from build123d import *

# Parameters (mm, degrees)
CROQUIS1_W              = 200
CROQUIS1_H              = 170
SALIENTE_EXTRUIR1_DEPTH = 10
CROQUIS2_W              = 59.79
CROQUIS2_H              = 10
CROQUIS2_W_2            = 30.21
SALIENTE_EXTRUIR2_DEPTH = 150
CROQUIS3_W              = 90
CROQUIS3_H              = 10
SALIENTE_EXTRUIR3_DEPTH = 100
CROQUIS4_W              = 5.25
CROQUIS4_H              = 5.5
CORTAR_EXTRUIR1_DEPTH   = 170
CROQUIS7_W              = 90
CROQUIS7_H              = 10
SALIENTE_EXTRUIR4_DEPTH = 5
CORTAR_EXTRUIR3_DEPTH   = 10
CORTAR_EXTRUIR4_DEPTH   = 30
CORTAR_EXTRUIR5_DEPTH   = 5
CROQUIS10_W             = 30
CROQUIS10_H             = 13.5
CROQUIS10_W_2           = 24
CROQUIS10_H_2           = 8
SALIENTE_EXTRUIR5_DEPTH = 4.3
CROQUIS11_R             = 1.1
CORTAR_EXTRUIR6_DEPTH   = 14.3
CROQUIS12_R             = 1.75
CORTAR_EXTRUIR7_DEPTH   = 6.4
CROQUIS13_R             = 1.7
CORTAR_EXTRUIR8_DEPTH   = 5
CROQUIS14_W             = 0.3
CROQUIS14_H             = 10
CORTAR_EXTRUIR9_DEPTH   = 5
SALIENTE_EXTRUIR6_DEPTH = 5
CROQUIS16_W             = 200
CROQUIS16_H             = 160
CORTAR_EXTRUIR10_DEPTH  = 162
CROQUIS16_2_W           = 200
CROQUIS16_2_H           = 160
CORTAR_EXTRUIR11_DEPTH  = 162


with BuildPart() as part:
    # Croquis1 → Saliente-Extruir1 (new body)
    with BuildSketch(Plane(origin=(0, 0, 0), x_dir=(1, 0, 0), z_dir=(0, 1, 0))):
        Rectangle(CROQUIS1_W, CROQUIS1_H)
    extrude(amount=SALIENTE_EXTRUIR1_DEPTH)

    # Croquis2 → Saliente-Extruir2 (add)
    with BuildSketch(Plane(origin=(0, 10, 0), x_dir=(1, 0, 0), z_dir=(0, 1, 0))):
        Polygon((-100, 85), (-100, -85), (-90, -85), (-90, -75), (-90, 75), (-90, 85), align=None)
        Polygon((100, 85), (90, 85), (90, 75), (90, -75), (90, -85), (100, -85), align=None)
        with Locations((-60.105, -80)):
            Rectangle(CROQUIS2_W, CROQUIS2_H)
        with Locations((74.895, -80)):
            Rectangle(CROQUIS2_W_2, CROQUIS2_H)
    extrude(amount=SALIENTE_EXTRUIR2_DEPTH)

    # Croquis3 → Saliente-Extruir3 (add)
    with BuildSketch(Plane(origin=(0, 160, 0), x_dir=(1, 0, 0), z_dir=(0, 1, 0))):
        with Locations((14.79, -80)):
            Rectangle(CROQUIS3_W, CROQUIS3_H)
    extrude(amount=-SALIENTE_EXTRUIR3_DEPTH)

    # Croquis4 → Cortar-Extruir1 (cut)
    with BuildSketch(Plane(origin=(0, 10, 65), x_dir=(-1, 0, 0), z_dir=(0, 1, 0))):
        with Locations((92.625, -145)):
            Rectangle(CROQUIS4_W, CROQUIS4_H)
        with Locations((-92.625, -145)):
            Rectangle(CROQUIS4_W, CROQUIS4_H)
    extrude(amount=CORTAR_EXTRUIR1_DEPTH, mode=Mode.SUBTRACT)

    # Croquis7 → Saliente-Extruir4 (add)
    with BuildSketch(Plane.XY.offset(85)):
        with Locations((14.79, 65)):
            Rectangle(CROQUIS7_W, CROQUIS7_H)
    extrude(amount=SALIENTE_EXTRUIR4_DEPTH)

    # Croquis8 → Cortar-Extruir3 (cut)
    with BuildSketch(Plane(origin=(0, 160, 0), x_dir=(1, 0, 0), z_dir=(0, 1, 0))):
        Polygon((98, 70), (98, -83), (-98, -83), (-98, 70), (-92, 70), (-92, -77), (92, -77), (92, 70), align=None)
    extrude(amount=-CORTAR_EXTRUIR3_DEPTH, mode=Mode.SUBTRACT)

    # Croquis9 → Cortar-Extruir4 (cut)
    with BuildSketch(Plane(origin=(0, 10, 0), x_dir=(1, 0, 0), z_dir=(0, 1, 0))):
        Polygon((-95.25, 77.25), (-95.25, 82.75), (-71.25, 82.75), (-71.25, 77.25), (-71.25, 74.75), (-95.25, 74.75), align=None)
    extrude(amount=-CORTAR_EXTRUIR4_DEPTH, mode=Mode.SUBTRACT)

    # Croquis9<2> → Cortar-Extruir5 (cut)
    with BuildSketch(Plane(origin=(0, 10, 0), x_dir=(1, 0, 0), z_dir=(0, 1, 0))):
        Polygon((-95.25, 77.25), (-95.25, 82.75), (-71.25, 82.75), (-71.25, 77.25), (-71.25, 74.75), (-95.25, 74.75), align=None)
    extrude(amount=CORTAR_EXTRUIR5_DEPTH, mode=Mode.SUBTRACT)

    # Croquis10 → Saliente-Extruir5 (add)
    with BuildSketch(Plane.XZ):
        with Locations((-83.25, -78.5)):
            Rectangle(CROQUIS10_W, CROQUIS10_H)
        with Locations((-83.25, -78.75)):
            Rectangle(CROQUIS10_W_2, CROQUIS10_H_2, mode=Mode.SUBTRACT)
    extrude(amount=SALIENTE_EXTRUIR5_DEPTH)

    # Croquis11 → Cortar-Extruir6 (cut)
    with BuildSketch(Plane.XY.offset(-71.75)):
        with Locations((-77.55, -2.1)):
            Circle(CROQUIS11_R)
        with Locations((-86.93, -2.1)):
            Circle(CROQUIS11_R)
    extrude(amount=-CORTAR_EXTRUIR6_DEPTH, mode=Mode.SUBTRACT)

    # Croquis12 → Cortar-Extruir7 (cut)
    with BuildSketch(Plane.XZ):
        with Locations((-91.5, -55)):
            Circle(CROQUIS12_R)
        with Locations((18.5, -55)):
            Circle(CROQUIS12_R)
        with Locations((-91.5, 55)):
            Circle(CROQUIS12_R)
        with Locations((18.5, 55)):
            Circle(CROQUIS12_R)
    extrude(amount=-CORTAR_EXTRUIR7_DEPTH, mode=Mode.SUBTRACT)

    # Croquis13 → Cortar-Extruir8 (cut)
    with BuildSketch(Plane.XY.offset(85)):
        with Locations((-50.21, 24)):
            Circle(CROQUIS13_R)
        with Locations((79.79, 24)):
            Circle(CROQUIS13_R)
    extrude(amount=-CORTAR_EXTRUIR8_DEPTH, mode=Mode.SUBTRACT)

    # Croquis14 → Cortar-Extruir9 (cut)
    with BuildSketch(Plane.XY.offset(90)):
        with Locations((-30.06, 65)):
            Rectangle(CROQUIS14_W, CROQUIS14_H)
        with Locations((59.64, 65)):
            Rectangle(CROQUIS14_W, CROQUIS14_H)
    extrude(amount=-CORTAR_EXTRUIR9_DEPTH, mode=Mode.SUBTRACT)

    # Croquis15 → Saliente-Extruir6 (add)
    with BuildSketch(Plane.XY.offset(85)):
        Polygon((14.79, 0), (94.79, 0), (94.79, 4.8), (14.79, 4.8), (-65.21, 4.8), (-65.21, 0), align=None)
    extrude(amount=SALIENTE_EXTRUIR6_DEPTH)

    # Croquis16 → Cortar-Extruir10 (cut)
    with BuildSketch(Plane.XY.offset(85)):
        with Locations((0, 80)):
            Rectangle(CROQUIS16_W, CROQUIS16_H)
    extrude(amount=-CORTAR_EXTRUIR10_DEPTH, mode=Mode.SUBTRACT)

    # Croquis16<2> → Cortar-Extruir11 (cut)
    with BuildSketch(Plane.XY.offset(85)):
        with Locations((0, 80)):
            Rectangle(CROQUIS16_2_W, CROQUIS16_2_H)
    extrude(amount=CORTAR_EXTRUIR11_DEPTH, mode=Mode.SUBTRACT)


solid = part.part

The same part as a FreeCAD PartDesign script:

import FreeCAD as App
import Part
import Sketcher

V = App.Vector

doc = App.newDocument("Part")
params = doc.addObject("Spreadsheet::Sheet", "Params")
for row, (alias, value) in enumerate([
    ("sketch1_width", "200 mm"),
    ("sketch1_height", "170 mm"),
    ("pad1_length", "10 mm"),
    ("sketch2_width", "10 mm"),
    ("sketch2_height", "170 mm"),
    ("sketch2_width2", "69.79 mm"),
    ("pad2_length", "150 mm"),
    ("sketch3_width", "90 mm"),
    ("sketch3_height", "10 mm"),
    ("pad3_length", "100 mm"),
    ("sketch4_height", "5.5 mm"),
    ("sketch4_width", "5.25 mm"),
    ("pocket1_length", "170 mm"),
    ("sketch5_width", "90 mm"),
    ("sketch5_height", "10 mm"),
    ("pad4_length", "5 mm"),
    ("sketch6_width", "6 mm"),
    ("sketch6_width2", "184 mm"),
    ("sketch6_height", "153 mm"),
    ("sketch6_height2", "147 mm"),
    ("pocket2_length", "10 mm"),
    ("sketch7_width", "24 mm"),
    ("sketch7_height", "8 mm"),
    ("pocket3_length", "30 mm"),
    ("sketch8_width", "24 mm"),
    ("sketch8_height", "8 mm"),
    ("pocket4_length", "5 mm"),
    ("sketch9_width", "30 mm"),
    ("sketch9_width2", "24 mm"),
    ("sketch9_height", "8 mm"),
    ("sketch9_height2", "13.5 mm"),
    ("pad5_length", "4.3 mm"),
    ("sketch10_diameter", "2.2 mm"),
    ("pocket5_length", "14.3 mm"),
    ("sketch11_diameter", "3.5 mm"),
    ("pocket6_length", "6.4 mm"),
    ("sketch12_diameter", "3.4 mm"),
    ("pocket7_length", "5 mm"),
    ("sketch13_height", "10 mm"),
    ("sketch13_width", "0.3 mm"),
    ("pocket8_length", "5 mm"),
    ("sketch14_width", "160 mm"),
    ("sketch14_height", "4.8 mm"),
    ("pad6_length", "5 mm"),
    ("sketch15_width", "200 mm"),
    ("sketch15_height", "160 mm"),
    ("pocket9_length", "162 mm"),
    ("sketch16_width", "200 mm"),
    ("sketch16_height", "160 mm"),
    ("pocket10_length", "162 mm"),
], start=1):
    params.set(f"A{row}", alias)
    params.set(f"B{row}", "=" + value)
    params.setAlias(f"B{row}", alias)

body = doc.addObject("PartDesign::Body", "Body")
body.AllowCompound = True

sketch1 = doc.addObject("Sketcher::SketchObject", "Sketch")
body.addObject(sketch1)
sketch1.AttachmentSupport = (doc.XZ_Plane, [""])
sketch1.MapMode = "FlatFace"
sketch1.addGeometry(Part.LineSegment(V(-100, -85, 0), V(-100, 85, 0)), False)
sketch1.addGeometry(Part.LineSegment(V(-100, 85, 0), V(100, 85, 0)), False)
sketch1.addGeometry(Part.LineSegment(V(100, 85, 0), V(100, -85, 0)), False)
sketch1.addGeometry(Part.LineSegment(V(100, -85, 0), V(-100, -85, 0)), False)
sketch1.addConstraint(Sketcher.Constraint("Coincident", 0, 2, 1, 1))
sketch1.addConstraint(Sketcher.Constraint("Coincident", 1, 2, 2, 1))
sketch1.addConstraint(Sketcher.Constraint("Coincident", 2, 2, 3, 1))
sketch1.addConstraint(Sketcher.Constraint("Coincident", 3, 2, 0, 1))
sketch1.addConstraint(Sketcher.Constraint("Vertical", 0))
sketch1.addConstraint(Sketcher.Constraint("Horizontal", 1))
sketch1.addConstraint(Sketcher.Constraint("Vertical", 2))
sketch1.addConstraint(Sketcher.Constraint("Horizontal", 3))
sketch1.addConstraint(Sketcher.Constraint("Symmetric", 0, 2, 2, 2, -1, 1))
sketch1.addConstraint(Sketcher.Constraint("DistanceX", 1, 1, 1, 2, 200.0))
sketch1.addConstraint(Sketcher.Constraint("DistanceY", 0, 1, 0, 2, 170.0))
sketch1.setExpression("Constraints[9]", "Params.sketch1_width")
sketch1.setExpression("Constraints[10]", "Params.sketch1_height")
pad1 = doc.addObject("PartDesign::Pad", "Pad")
body.addObject(pad1)
pad1.Profile = sketch1
pad1.setExpression("Length", "Params.pad1_length")
pad1.Reversed = True

sketch2 = doc.addObject("Sketcher::SketchObject", "Sketch001")
body.addObject(sketch2)
sketch2.AttachmentSupport = (doc.XZ_Plane, [""])
sketch2.MapMode = "FlatFace"
sketch2.AttachmentOffset = App.Placement(V(0, 0, -10), App.Rotation())
sketch2.addGeometry(Part.LineSegment(V(-100, -85, 0), V(-100, 85, 0)), False)
sketch2.addGeometry(Part.LineSegment(V(-100, 85, 0), V(-30, 85, 0)), False)
sketch2.addGeometry(Part.LineSegment(V(-30, 85, 0), V(-30, 75, 0)), False)
sketch2.addGeometry(Part.LineSegment(V(-30, 75, 0), V(-90, 75, 0)), False)
sketch2.addGeometry(Part.LineSegment(V(-90, 75, 0), V(-90, -85, 0)), False)
sketch2.addGeometry(Part.LineSegment(V(-90, -85, 0), V(-100, -85, 0)), False)
sketch2.addGeometry(Part.LineSegment(V(100, -85, 0), V(90, -85, 0)), False)
sketch2.addGeometry(Part.LineSegment(V(90, -85, 0), V(90, 75, 0)), False)
sketch2.addGeometry(Part.LineSegment(V(90, 75, 0), V(60, 75, 0)), False)
sketch2.addGeometry(Part.LineSegment(V(60, 75, 0), V(60, 85, 0)), False)
sketch2.addGeometry(Part.LineSegment(V(60, 85, 0), V(100, 85, 0)), False)
sketch2.addGeometry(Part.LineSegment(V(100, 85, 0), V(100, -85, 0)), False)
sketch2.addConstraint(Sketcher.Constraint("Coincident", 0, 2, 1, 1))
sketch2.addConstraint(Sketcher.Constraint("Coincident", 1, 2, 2, 1))
sketch2.addConstraint(Sketcher.Constraint("Coincident", 2, 2, 3, 1))
sketch2.addConstraint(Sketcher.Constraint("Coincident", 3, 2, 4, 1))
sketch2.addConstraint(Sketcher.Constraint("Coincident", 4, 2, 5, 1))
sketch2.addConstraint(Sketcher.Constraint("Coincident", 5, 2, 0, 1))
sketch2.addConstraint(Sketcher.Constraint("Coincident", 6, 2, 7, 1))
sketch2.addConstraint(Sketcher.Constraint("Coincident", 7, 2, 8, 1))
sketch2.addConstraint(Sketcher.Constraint("Coincident", 8, 2, 9, 1))
sketch2.addConstraint(Sketcher.Constraint("Coincident", 9, 2, 10, 1))
sketch2.addConstraint(Sketcher.Constraint("Coincident", 10, 2, 11, 1))
sketch2.addConstraint(Sketcher.Constraint("Coincident", 11, 2, 6, 1))
sketch2.addConstraint(Sketcher.Constraint("Vertical", 0))
sketch2.addConstraint(Sketcher.Constraint("Horizontal", 1))
sketch2.addConstraint(Sketcher.Constraint("Vertical", 2))
sketch2.addConstraint(Sketcher.Constraint("Horizontal", 3))
sketch2.addConstraint(Sketcher.Constraint("Vertical", 4))
sketch2.addConstraint(Sketcher.Constraint("Horizontal", 5))
sketch2.addConstraint(Sketcher.Constraint("Horizontal", 6))
sketch2.addConstraint(Sketcher.Constraint("Vertical", 7))
sketch2.addConstraint(Sketcher.Constraint("Horizontal", 8))
sketch2.addConstraint(Sketcher.Constraint("Vertical", 9))
sketch2.addConstraint(Sketcher.Constraint("Horizontal", 10))
sketch2.addConstraint(Sketcher.Constraint("Vertical", 11))
sketch2.addConstraint(Sketcher.Constraint("Symmetric", 5, 2, 10, 2, -1, 1))
sketch2.addConstraint(Sketcher.Constraint("Symmetric", 4, 2, 6, 2, -2))
sketch2.addConstraint(Sketcher.Constraint("Horizontal", 3, 2, 7, 2))
sketch2.addConstraint(Sketcher.Constraint("Horizontal", 1, 2, 9, 2))
sketch2.addConstraint(Sketcher.Constraint("Equal", 6, 2))
sketch2.addConstraint(Sketcher.Constraint("DistanceX", 5, 2, 5, 1, 10.0))
sketch2.addConstraint(Sketcher.Constraint("DistanceY", 0, 1, 0, 2, 170.0))
sketch2.addConstraint(Sketcher.Constraint("DistanceX", 0, 2, -1, 1, 100.0))
sketch2.addConstraint(Sketcher.Constraint("DistanceX", 2, 2, 8, 2, 90.0))
sketch2.addConstraint(Sketcher.Constraint("DistanceX", 1, 1, 1, 2, 69.79))
sketch2.setExpression("Constraints[29]", "Params.sketch2_width")
sketch2.setExpression("Constraints[30]", "Params.sketch2_height")
sketch2.setExpression("Constraints[33]", "Params.sketch2_width2")
pad2 = doc.addObject("PartDesign::Pad", "Pad001")
body.addObject(pad2)
pad2.Profile = sketch2
pad2.setExpression("Length", "Params.pad2_length")
pad2.Reversed = True

sketch3 = doc.addObject("Sketcher::SketchObject", "Sketch002")
body.addObject(sketch3)
sketch3.AttachmentSupport = (doc.XZ_Plane, [""])
sketch3.MapMode = "FlatFace"
sketch3.AttachmentOffset = App.Placement(V(0, 0, -160), App.Rotation())
sketch3.addGeometry(Part.LineSegment(V(-30, 75, 0), V(-30, 85, 0)), False)
sketch3.addGeometry(Part.LineSegment(V(-30, 85, 0), V(60, 85, 0)), False)
sketch3.addGeometry(Part.LineSegment(V(60, 85, 0), V(60, 75, 0)), False)
sketch3.addGeometry(Part.LineSegment(V(60, 75, 0), V(-30, 75, 0)), False)
sketch3.addConstraint(Sketcher.Constraint("Coincident", 0, 2, 1, 1))
sketch3.addConstraint(Sketcher.Constraint("Coincident", 1, 2, 2, 1))
sketch3.addConstraint(Sketcher.Constraint("Coincident", 2, 2, 3, 1))
sketch3.addConstraint(Sketcher.Constraint("Coincident", 3, 2, 0, 1))
sketch3.addConstraint(Sketcher.Constraint("Vertical", 0))
sketch3.addConstraint(Sketcher.Constraint("Horizontal", 1))
sketch3.addConstraint(Sketcher.Constraint("Vertical", 2))
sketch3.addConstraint(Sketcher.Constraint("Horizontal", 3))
sketch3.addConstraint(Sketcher.Constraint("DistanceX", 1, 1, 1, 2, 90.0))
sketch3.addConstraint(Sketcher.Constraint("DistanceY", 0, 1, 0, 2, 10.0))
sketch3.addConstraint(Sketcher.Constraint("DistanceY", -1, 1, 0, 2, 85.0))
sketch3.addConstraint(Sketcher.Constraint("DistanceX", 0, 2, -1, 1, 30.21))
sketch3.setExpression("Constraints[8]", "Params.sketch3_width")
sketch3.setExpression("Constraints[9]", "Params.sketch3_height")
pad3 = doc.addObject("PartDesign::Pad", "Pad002")
body.addObject(pad3)
pad3.Profile = sketch3
pad3.setExpression("Length", "Params.pad3_length")

sketch4 = doc.addObject("Sketcher::SketchObject", "Sketch003")
body.addObject(sketch4)
sketch4.AttachmentSupport = (doc.XZ_Plane, [""])
sketch4.MapMode = "FlatFace"
sketch4.AttachmentOffset = App.Placement(V(0, 0, -10), App.Rotation())
sketch4.addGeometry(Part.LineSegment(V(-90, -77, 0), V(-90, -83, 0)), False)
sketch4.addGeometry(Part.LineSegment(V(-90, -83, 0), V(-95, -83, 0)), False)
sketch4.addGeometry(Part.LineSegment(V(-95, -83, 0), V(-95, -77, 0)), False)
sketch4.addGeometry(Part.LineSegment(V(-95, -77, 0), V(-90, -77, 0)), False)
sketch4.addGeometry(Part.LineSegment(V(95, -77, 0), V(95, -83, 0)), False)
sketch4.addGeometry(Part.LineSegment(V(95, -83, 0), V(90, -83, 0)), False)
sketch4.addGeometry(Part.LineSegment(V(90, -83, 0), V(90, -77, 0)), False)
sketch4.addGeometry(Part.LineSegment(V(90, -77, 0), V(95, -77, 0)), False)
sketch4.addConstraint(Sketcher.Constraint("Coincident", 0, 2, 1, 1))
sketch4.addConstraint(Sketcher.Constraint("Coincident", 1, 2, 2, 1))
sketch4.addConstraint(Sketcher.Constraint("Coincident", 2, 2, 3, 1))
sketch4.addConstraint(Sketcher.Constraint("Coincident", 3, 2, 0, 1))
sketch4.addConstraint(Sketcher.Constraint("Coincident", 4, 2, 5, 1))
sketch4.addConstraint(Sketcher.Constraint("Coincident", 5, 2, 6, 1))
sketch4.addConstraint(Sketcher.Constraint("Coincident", 6, 2, 7, 1))
sketch4.addConstraint(Sketcher.Constraint("Coincident", 7, 2, 4, 1))
sketch4.addConstraint(Sketcher.Constraint("Vertical", 0))
sketch4.addConstraint(Sketcher.Constraint("Horizontal", 1))
sketch4.addConstraint(Sketcher.Constraint("Vertical", 2))
sketch4.addConstraint(Sketcher.Constraint("Horizontal", 3))
sketch4.addConstraint(Sketcher.Constraint("Vertical", 4))
sketch4.addConstraint(Sketcher.Constraint("Horizontal", 5))
sketch4.addConstraint(Sketcher.Constraint("Vertical", 6))
sketch4.addConstraint(Sketcher.Constraint("Horizontal", 7))
sketch4.addConstraint(Sketcher.Constraint("Symmetric", 1, 2, 4, 2, -2))
sketch4.addConstraint(Sketcher.Constraint("Symmetric", 3, 2, 6, 2, -2))
sketch4.addConstraint(Sketcher.Constraint("DistanceY", 0, 2, 0, 1, 5.5))
sketch4.addConstraint(Sketcher.Constraint("DistanceX", 0, 2, -1, 1, 90.0))
sketch4.addConstraint(Sketcher.Constraint("DistanceX", 1, 2, 1, 1, 5.25))
sketch4.addConstraint(Sketcher.Constraint("DistanceY", 0, 2, -1, 1, 82.75))
sketch4.setExpression("Constraints[18]", "Params.sketch4_height")
sketch4.setExpression("Constraints[20]", "Params.sketch4_width")
pocket1 = doc.addObject("PartDesign::Pocket", "Pocket")
body.addObject(pocket1)
pocket1.Profile = sketch4
pocket1.setExpression("Length", "Params.pocket1_length")

sketch5 = doc.addObject("Sketcher::SketchObject", "Sketch004")
body.addObject(sketch5)
sketch5.AttachmentSupport = (doc.XY_Plane, [""])
sketch5.MapMode = "FlatFace"
sketch5.AttachmentOffset = App.Placement(V(0, 0, 85), App.Rotation())
sketch5.addGeometry(Part.LineSegment(V(-30, 70, 0), V(-30, 60, 0)), False)
sketch5.addGeometry(Part.LineSegment(V(-30, 60, 0), V(60, 60, 0)), False)
sketch5.addGeometry(Part.LineSegment(V(60, 60, 0), V(60, 70, 0)), False)
sketch5.addGeometry(Part.LineSegment(V(60, 70, 0), V(-30, 70, 0)), False)
sketch5.addConstraint(Sketcher.Constraint("Coincident", 0, 2, 1, 1))
sketch5.addConstraint(Sketcher.Constraint("Coincident", 1, 2, 2, 1))
sketch5.addConstraint(Sketcher.Constraint("Coincident", 2, 2, 3, 1))
sketch5.addConstraint(Sketcher.Constraint("Coincident", 3, 2, 0, 1))
sketch5.addConstraint(Sketcher.Constraint("Vertical", 0))
sketch5.addConstraint(Sketcher.Constraint("Horizontal", 1))
sketch5.addConstraint(Sketcher.Constraint("Vertical", 2))
sketch5.addConstraint(Sketcher.Constraint("Horizontal", 3))
sketch5.addConstraint(Sketcher.Constraint("DistanceX", 1, 1, 1, 2, 90.0))
sketch5.addConstraint(Sketcher.Constraint("DistanceY", 0, 2, 0, 1, 10.0))
sketch5.addConstraint(Sketcher.Constraint("DistanceY", -1, 1, 0, 2, 60.0))
sketch5.addConstraint(Sketcher.Constraint("DistanceX", 0, 2, -1, 1, 30.21))
sketch5.setExpression("Constraints[8]", "Params.sketch5_width")
sketch5.setExpression("Constraints[9]", "Params.sketch5_height")
pad4 = doc.addObject("PartDesign::Pad", "Pad003")
body.addObject(pad4)
pad4.Profile = sketch5
pad4.setExpression("Length", "Params.pad4_length")

sketch6 = doc.addObject("Sketcher::SketchObject", "Sketch005")
body.addObject(sketch6)
sketch6.AttachmentSupport = (doc.XZ_Plane, [""])
sketch6.MapMode = "FlatFace"
sketch6.AttachmentOffset = App.Placement(V(0, 0, -160), App.Rotation())
sketch6.addGeometry(Part.LineSegment(V(98, 83, 0), V(98, -70, 0)), False)
sketch6.addGeometry(Part.LineSegment(V(98, -70, 0), V(92, -70, 0)), False)
sketch6.addGeometry(Part.LineSegment(V(92, -70, 0), V(92, 77, 0)), False)
sketch6.addGeometry(Part.LineSegment(V(92, 77, 0), V(-92, 77, 0)), False)
sketch6.addGeometry(Part.LineSegment(V(-92, 77, 0), V(-92, -70, 0)), False)
sketch6.addGeometry(Part.LineSegment(V(-92, -70, 0), V(-98, -70, 0)), False)
sketch6.addGeometry(Part.LineSegment(V(-98, -70, 0), V(-98, 83, 0)), False)
sketch6.addGeometry(Part.LineSegment(V(-98, 83, 0), V(98, 83, 0)), False)
sketch6.addConstraint(Sketcher.Constraint("Coincident", 0, 2, 1, 1))
sketch6.addConstraint(Sketcher.Constraint("Coincident", 1, 2, 2, 1))
sketch6.addConstraint(Sketcher.Constraint("Coincident", 2, 2, 3, 1))
sketch6.addConstraint(Sketcher.Constraint("Coincident", 3, 2, 4, 1))
sketch6.addConstraint(Sketcher.Constraint("Coincident", 4, 2, 5, 1))
sketch6.addConstraint(Sketcher.Constraint("Coincident", 5, 2, 6, 1))
sketch6.addConstraint(Sketcher.Constraint("Coincident", 6, 2, 7, 1))
sketch6.addConstraint(Sketcher.Constraint("Coincident", 7, 2, 0, 1))
sketch6.addConstraint(Sketcher.Constraint("Vertical", 0))
sketch6.addConstraint(Sketcher.Constraint("Horizontal", 1))
sketch6.addConstraint(Sketcher.Constraint("Vertical", 2))
sketch6.addConstraint(Sketcher.Constraint("Horizontal", 3))
sketch6.addConstraint(Sketcher.Constraint("Vertical", 4))
sketch6.addConstraint(Sketcher.Constraint("Horizontal", 5))
sketch6.addConstraint(Sketcher.Constraint("Vertical", 6))
sketch6.addConstraint(Sketcher.Constraint("Horizontal", 7))
sketch6.addConstraint(Sketcher.Constraint("Symmetric", 1, 2, 4, 2, -2))
sketch6.addConstraint(Sketcher.Constraint("Equal", 1, 5))
sketch6.addConstraint(Sketcher.Constraint("DistanceX", 1, 2, 1, 1, 6.0))
sketch6.addConstraint(Sketcher.Constraint("DistanceX", 3, 2, 3, 1, 184.0))
sketch6.addConstraint(Sketcher.Constraint("DistanceY", 0, 2, 0, 1, 153.0))
sketch6.addConstraint(Sketcher.Constraint("DistanceY", 2, 1, 2, 2, 147.0))
sketch6.addConstraint(Sketcher.Constraint("DistanceY", 0, 2, -1, 1, 70.0))
sketch6.setExpression("Constraints[18]", "Params.sketch6_width")
sketch6.setExpression("Constraints[19]", "Params.sketch6_width2")
sketch6.setExpression("Constraints[20]", "Params.sketch6_height")
sketch6.setExpression("Constraints[21]", "Params.sketch6_height2")
pocket2 = doc.addObject("PartDesign::Pocket", "Pocket001")
body.addObject(pocket2)
pocket2.Profile = sketch6
pocket2.setExpression("Length", "Params.pocket2_length")
pocket2.Reversed = True

sketch7 = doc.addObject("Sketcher::SketchObject", "Sketch006")
body.addObject(sketch7)
sketch7.AttachmentSupport = (doc.XZ_Plane, [""])
sketch7.MapMode = "FlatFace"
sketch7.AttachmentOffset = App.Placement(V(0, 0, -10), App.Rotation())
sketch7.addGeometry(Part.LineSegment(V(-95, -83, 0), V(-95, -75, 0)), False)
sketch7.addGeometry(Part.LineSegment(V(-95, -75, 0), V(-71, -75, 0)), False)
sketch7.addGeometry(Part.LineSegment(V(-71, -75, 0), V(-71, -83, 0)), False)
sketch7.addGeometry(Part.LineSegment(V(-71, -83, 0), V(-95, -83, 0)), False)
sketch7.addConstraint(Sketcher.Constraint("Coincident", 0, 2, 1, 1))
sketch7.addConstraint(Sketcher.Constraint("Coincident", 1, 2, 2, 1))
sketch7.addConstraint(Sketcher.Constraint("Coincident", 2, 2, 3, 1))
sketch7.addConstraint(Sketcher.Constraint("Coincident", 3, 2, 0, 1))
sketch7.addConstraint(Sketcher.Constraint("Vertical", 0))
sketch7.addConstraint(Sketcher.Constraint("Horizontal", 1))
sketch7.addConstraint(Sketcher.Constraint("Vertical", 2))
sketch7.addConstraint(Sketcher.Constraint("Horizontal", 3))
sketch7.addConstraint(Sketcher.Constraint("DistanceX", 1, 1, 1, 2, 24.0))
sketch7.addConstraint(Sketcher.Constraint("DistanceY", 0, 1, 0, 2, 8.0))
sketch7.addConstraint(Sketcher.Constraint("DistanceX", 0, 2, -1, 1, 95.25))
sketch7.addConstraint(Sketcher.Constraint("DistanceY", 0, 2, -1, 1, 74.75))
sketch7.setExpression("Constraints[8]", "Params.sketch7_width")
sketch7.setExpression("Constraints[9]", "Params.sketch7_height")
pocket3 = doc.addObject("PartDesign::Pocket", "Pocket002")
body.addObject(pocket3)
pocket3.Profile = sketch7
pocket3.setExpression("Length", "Params.pocket3_length")
pocket3.Reversed = True

sketch8 = doc.addObject("Sketcher::SketchObject", "Sketch007")
body.addObject(sketch8)
sketch8.AttachmentSupport = (doc.XZ_Plane, [""])
sketch8.MapMode = "FlatFace"
sketch8.AttachmentOffset = App.Placement(V(0, 0, -10), App.Rotation())
sketch8.addGeometry(Part.LineSegment(V(-95, -83, 0), V(-95, -75, 0)), False)
sketch8.addGeometry(Part.LineSegment(V(-95, -75, 0), V(-71, -75, 0)), False)
sketch8.addGeometry(Part.LineSegment(V(-71, -75, 0), V(-71, -83, 0)), False)
sketch8.addGeometry(Part.LineSegment(V(-71, -83, 0), V(-95, -83, 0)), False)
sketch8.addConstraint(Sketcher.Constraint("Coincident", 0, 2, 1, 1))
sketch8.addConstraint(Sketcher.Constraint("Coincident", 1, 2, 2, 1))
sketch8.addConstraint(Sketcher.Constraint("Coincident", 2, 2, 3, 1))
sketch8.addConstraint(Sketcher.Constraint("Coincident", 3, 2, 0, 1))
sketch8.addConstraint(Sketcher.Constraint("Vertical", 0))
sketch8.addConstraint(Sketcher.Constraint("Horizontal", 1))
sketch8.addConstraint(Sketcher.Constraint("Vertical", 2))
sketch8.addConstraint(Sketcher.Constraint("Horizontal", 3))
sketch8.addConstraint(Sketcher.Constraint("DistanceX", 1, 1, 1, 2, 24.0))
sketch8.addConstraint(Sketcher.Constraint("DistanceY", 0, 1, 0, 2, 8.0))
sketch8.addConstraint(Sketcher.Constraint("DistanceX", 0, 2, -1, 1, 95.25))
sketch8.addConstraint(Sketcher.Constraint("DistanceY", 0, 2, -1, 1, 74.75))
sketch8.setExpression("Constraints[8]", "Params.sketch8_width")
sketch8.setExpression("Constraints[9]", "Params.sketch8_height")
pocket4 = doc.addObject("PartDesign::Pocket", "Pocket003")
body.addObject(pocket4)
pocket4.Profile = sketch8
pocket4.setExpression("Length", "Params.pocket4_length")

sketch9 = doc.addObject("Sketcher::SketchObject", "Sketch008")
body.addObject(sketch9)
sketch9.AttachmentSupport = (doc.XZ_Plane, [""])
sketch9.MapMode = "FlatFace"
sketch9.addGeometry(Part.LineSegment(V(-98, -72, 0), V(-98, -85, 0)), False)
sketch9.addGeometry(Part.LineSegment(V(-98, -85, 0), V(-68, -85, 0)), False)
sketch9.addGeometry(Part.LineSegment(V(-68, -85, 0), V(-68, -72, 0)), False)
sketch9.addGeometry(Part.LineSegment(V(-68, -72, 0), V(-98, -72, 0)), False)
sketch9.addGeometry(Part.LineSegment(V(-71, -83, 0), V(-95, -83, 0)), False)
sketch9.addGeometry(Part.LineSegment(V(-95, -83, 0), V(-95, -75, 0)), False)
sketch9.addGeometry(Part.LineSegment(V(-95, -75, 0), V(-71, -75, 0)), False)
sketch9.addGeometry(Part.LineSegment(V(-71, -75, 0), V(-71, -83, 0)), False)
sketch9.addConstraint(Sketcher.Constraint("Coincident", 0, 2, 1, 1))
sketch9.addConstraint(Sketcher.Constraint("Coincident", 1, 2, 2, 1))
sketch9.addConstraint(Sketcher.Constraint("Coincident", 2, 2, 3, 1))
sketch9.addConstraint(Sketcher.Constraint("Coincident", 3, 2, 0, 1))
sketch9.addConstraint(Sketcher.Constraint("Coincident", 4, 2, 5, 1))
sketch9.addConstraint(Sketcher.Constraint("Coincident", 5, 2, 6, 1))
sketch9.addConstraint(Sketcher.Constraint("Coincident", 6, 2, 7, 1))
sketch9.addConstraint(Sketcher.Constraint("Coincident", 7, 2, 4, 1))
sketch9.addConstraint(Sketcher.Constraint("Vertical", 0))
sketch9.addConstraint(Sketcher.Constraint("Horizontal", 1))
sketch9.addConstraint(Sketcher.Constraint("Vertical", 2))
sketch9.addConstraint(Sketcher.Constraint("Horizontal", 3))
sketch9.addConstraint(Sketcher.Constraint("Horizontal", 4))
sketch9.addConstraint(Sketcher.Constraint("Vertical", 5))
sketch9.addConstraint(Sketcher.Constraint("Horizontal", 6))
sketch9.addConstraint(Sketcher.Constraint("Vertical", 7))
sketch9.addConstraint(Sketcher.Constraint("DistanceX", 1, 1, 1, 2, 30.0))
sketch9.addConstraint(Sketcher.Constraint("DistanceX", 4, 2, 4, 1, 24.0))
sketch9.addConstraint(Sketcher.Constraint("DistanceY", 5, 1, 5, 2, 8.0))
sketch9.addConstraint(Sketcher.Constraint("DistanceY", 0, 2, 0, 1, 13.5))
sketch9.addConstraint(Sketcher.Constraint("DistanceX", 0, 2, 4, 2, 3.0))
sketch9.addConstraint(Sketcher.Constraint("DistanceY", 4, 2, 3, 2, 11.0))
sketch9.addConstraint(Sketcher.Constraint("DistanceX", 0, 2, -1, 1, 98.25))
sketch9.addConstraint(Sketcher.Constraint("DistanceY", 0, 2, -1, 1, 85.25))
sketch9.setExpression("Constraints[16]", "Params.sketch9_width")
sketch9.setExpression("Constraints[17]", "Params.sketch9_width2")
sketch9.setExpression("Constraints[18]", "Params.sketch9_height")
sketch9.setExpression("Constraints[19]", "Params.sketch9_height2")
pad5 = doc.addObject("PartDesign::Pad", "Pad004")
body.addObject(pad5)
pad5.Profile = sketch9
pad5.setExpression("Length", "Params.pad5_length")

sketch10 = doc.addObject("Sketcher::SketchObject", "Sketch009")
body.addObject(sketch10)
sketch10.AttachmentSupport = (doc.XY_Plane, [""])
sketch10.MapMode = "FlatFace"
sketch10.AttachmentOffset = App.Placement(V(0, 0, -71.75), App.Rotation())
sketch10.addGeometry(Part.Circle(V(-77.5, -2.1, 0), V(0, 0, 1), 1.1), False)
sketch10.addGeometry(Part.Circle(V(-86.9, -2.1, 0), V(0, 0, 1), 1.1), False)
sketch10.addConstraint(Sketcher.Constraint("Equal", 0, 1))
sketch10.addConstraint(Sketcher.Constraint("Horizontal", 0, 3, 1, 3))
sketch10.addConstraint(Sketcher.Constraint("Diameter", 0, 2.2))
sketch10.addConstraint(Sketcher.Constraint("DistanceY", 0, 3, -1, 1, 2.1))
sketch10.addConstraint(Sketcher.Constraint("DistanceX", 0, 3, -1, 1, 77.55))
sketch10.addConstraint(Sketcher.Constraint("DistanceX", 1, 3, -1, 1, 86.93))
sketch10.setExpression("Constraints[2]", "Params.sketch10_diameter")
pocket5 = doc.addObject("PartDesign::Pocket", "Pocket004")
body.addObject(pocket5)
pocket5.Profile = sketch10
pocket5.setExpression("Length", "Params.pocket5_length")

sketch11 = doc.addObject("Sketcher::SketchObject", "Sketch010")
body.addObject(sketch11)
sketch11.AttachmentSupport = (doc.XZ_Plane, [""])
sketch11.MapMode = "FlatFace"
sketch11.addGeometry(Part.Circle(V(-91.5, -55, 0), V(0, 0, 1), 1.8), False)
sketch11.addGeometry(Part.Circle(V(18.5, -55, 0), V(0, 0, 1), 1.8), False)
sketch11.addGeometry(Part.Circle(V(-91.5, 55, 0), V(0, 0, 1), 1.8), False)
sketch11.addGeometry(Part.Circle(V(18.5, 55, 0), V(0, 0, 1), 1.8), False)
sketch11.addConstraint(Sketcher.Constraint("Equal", 0, 1))
sketch11.addConstraint(Sketcher.Constraint("Equal", 1, 2))
sketch11.addConstraint(Sketcher.Constraint("Equal", 2, 3))
sketch11.addConstraint(Sketcher.Constraint("Symmetric", 0, 3, 2, 3, -1))
sketch11.addConstraint(Sketcher.Constraint("Symmetric", 1, 3, 3, 3, -1))
sketch11.addConstraint(Sketcher.Constraint("Horizontal", 0, 3, 1, 3))
sketch11.addConstraint(Sketcher.Constraint("Diameter", 0, 3.5))
sketch11.addConstraint(Sketcher.Constraint("DistanceY", 0, 3, -1, 1, 55.0))
sketch11.addConstraint(Sketcher.Constraint("DistanceX", 0, 3, 1, 3, 110.0))
sketch11.addConstraint(Sketcher.Constraint("DistanceX", 0, 3, -1, 1, 91.5))
sketch11.setExpression("Constraints[6]", "Params.sketch11_diameter")
pocket6 = doc.addObject("PartDesign::Pocket", "Pocket005")
body.addObject(pocket6)
pocket6.Profile = sketch11
pocket6.setExpression("Length", "Params.pocket6_length")

sketch12 = doc.addObject("Sketcher::SketchObject", "Sketch011")
body.addObject(sketch12)
sketch12.AttachmentSupport = (doc.XY_Plane, [""])
sketch12.MapMode = "FlatFace"
sketch12.AttachmentOffset = App.Placement(V(0, 0, 85), App.Rotation())
sketch12.addGeometry(Part.Circle(V(-50.2, 24, 0), V(0, 0, 1), 1.7), False)
sketch12.addGeometry(Part.Circle(V(79.8, 24, 0), V(0, 0, 1), 1.7), False)
sketch12.addConstraint(Sketcher.Constraint("Equal", 0, 1))
sketch12.addConstraint(Sketcher.Constraint("Horizontal", 0, 3, 1, 3))
sketch12.addConstraint(Sketcher.Constraint("Diameter", 0, 3.4))
sketch12.addConstraint(Sketcher.Constraint("DistanceY", -1, 1, 0, 3, 24.0))
sketch12.addConstraint(Sketcher.Constraint("DistanceX", 0, 3, 1, 3, 130.0))
sketch12.addConstraint(Sketcher.Constraint("DistanceX", 0, 3, -1, 1, 50.21))
sketch12.setExpression("Constraints[2]", "Params.sketch12_diameter")
pocket7 = doc.addObject("PartDesign::Pocket", "Pocket006")
body.addObject(pocket7)
pocket7.Profile = sketch12
pocket7.setExpression("Length", "Params.pocket7_length")

sketch13 = doc.addObject("Sketcher::SketchObject", "Sketch012")
body.addObject(sketch13)
sketch13.AttachmentSupport = (doc.XY_Plane, [""])
sketch13.MapMode = "FlatFace"
sketch13.AttachmentOffset = App.Placement(V(0, 0, 90), App.Rotation())
sketch13.addGeometry(Part.LineSegment(V(-30.21, 70, 0), V(-30.21, 60, 0)), False)
sketch13.addGeometry(Part.LineSegment(V(-30.21, 60, 0), V(-29.91, 60, 0)), False)
sketch13.addGeometry(Part.LineSegment(V(-29.91, 60, 0), V(-29.91, 70, 0)), False)
sketch13.addGeometry(Part.LineSegment(V(-29.91, 70, 0), V(-30.21, 70, 0)), False)
sketch13.addGeometry(Part.LineSegment(V(59.49, 70, 0), V(59.49, 60, 0)), False)
sketch13.addGeometry(Part.LineSegment(V(59.49, 60, 0), V(59.79, 60, 0)), False)
sketch13.addGeometry(Part.LineSegment(V(59.79, 60, 0), V(59.79, 70, 0)), False)
sketch13.addGeometry(Part.LineSegment(V(59.79, 70, 0), V(59.49, 70, 0)), False)
sketch13.addConstraint(Sketcher.Constraint("Coincident", 0, 2, 1, 1))
sketch13.addConstraint(Sketcher.Constraint("Coincident", 1, 2, 2, 1))
sketch13.addConstraint(Sketcher.Constraint("Coincident", 2, 2, 3, 1))
sketch13.addConstraint(Sketcher.Constraint("Coincident", 3, 2, 0, 1))
sketch13.addConstraint(Sketcher.Constraint("Coincident", 4, 2, 5, 1))
sketch13.addConstraint(Sketcher.Constraint("Coincident", 5, 2, 6, 1))
sketch13.addConstraint(Sketcher.Constraint("Coincident", 6, 2, 7, 1))
sketch13.addConstraint(Sketcher.Constraint("Coincident", 7, 2, 4, 1))
sketch13.addConstraint(Sketcher.Constraint("Vertical", 0))
sketch13.addConstraint(Sketcher.Constraint("Horizontal", 1))
sketch13.addConstraint(Sketcher.Constraint("Vertical", 2))
sketch13.addConstraint(Sketcher.Constraint("Horizontal", 3))
sketch13.addConstraint(Sketcher.Constraint("Vertical", 4))
sketch13.addConstraint(Sketcher.Constraint("Horizontal", 5))
sketch13.addConstraint(Sketcher.Constraint("Vertical", 6))
sketch13.addConstraint(Sketcher.Constraint("Horizontal", 7))
sketch13.addConstraint(Sketcher.Constraint("Horizontal", 1, 2, 4, 2))
sketch13.addConstraint(Sketcher.Constraint("Horizontal", 3, 2, 6, 2))
sketch13.addConstraint(Sketcher.Constraint("Equal", 3, 5))
sketch13.addConstraint(Sketcher.Constraint("DistanceY", 0, 2, 0, 1, 10.0))
sketch13.addConstraint(Sketcher.Constraint("DistanceX", 1, 1, 1, 2, 0.3))
sketch13.addConstraint(Sketcher.Constraint("DistanceY", -1, 1, 0, 2, 60.0))
sketch13.addConstraint(Sketcher.Constraint("DistanceX", 0, 2, 5, 2, 90.0))
sketch13.addConstraint(Sketcher.Constraint("DistanceX", 0, 2, -1, 1, 30.21))
sketch13.setExpression("Constraints[19]", "Params.sketch13_height")
sketch13.setExpression("Constraints[20]", "Params.sketch13_width")
pocket8 = doc.addObject("PartDesign::Pocket", "Pocket007")
body.addObject(pocket8)
pocket8.Profile = sketch13
pocket8.setExpression("Length", "Params.pocket8_length")

sketch14 = doc.addObject("Sketcher::SketchObject", "Sketch013")
body.addObject(sketch14)
sketch14.AttachmentSupport = (doc.XY_Plane, [""])
sketch14.MapMode = "FlatFace"
sketch14.AttachmentOffset = App.Placement(V(0, 0, 85), App.Rotation())
sketch14.addGeometry(Part.LineSegment(V(94.8, 0, 0), V(94.8, 4.8, 0)), False)
sketch14.addGeometry(Part.LineSegment(V(94.8, 4.8, 0), V(-65.2, 4.8, 0)), False)
sketch14.addGeometry(Part.LineSegment(V(-65.2, 4.8, 0), V(-65.2, 0, 0)), False)
sketch14.addGeometry(Part.LineSegment(V(-65.2, 0, 0), V(94.8, 0, 0)), False)
sketch14.addConstraint(Sketcher.Constraint("Coincident", 0, 2, 1, 1))
sketch14.addConstraint(Sketcher.Constraint("Coincident", 1, 2, 2, 1))
sketch14.addConstraint(Sketcher.Constraint("Coincident", 2, 2, 3, 1))
sketch14.addConstraint(Sketcher.Constraint("Coincident", 3, 2, 0, 1))
sketch14.addConstraint(Sketcher.Constraint("Vertical", 0))
sketch14.addConstraint(Sketcher.Constraint("Horizontal", 1))
sketch14.addConstraint(Sketcher.Constraint("Vertical", 2))
sketch14.addConstraint(Sketcher.Constraint("Horizontal", 3))
sketch14.addConstraint(Sketcher.Constraint("PointOnObject", 2, 2, -1))
sketch14.addConstraint(Sketcher.Constraint("DistanceX", 1, 2, 1, 1, 160.0))
sketch14.addConstraint(Sketcher.Constraint("DistanceY", 0, 1, 0, 2, 4.8))
sketch14.addConstraint(Sketcher.Constraint("DistanceX", -1, 1, 0, 2, 94.79))
sketch14.setExpression("Constraints[9]", "Params.sketch14_width")
sketch14.setExpression("Constraints[10]", "Params.sketch14_height")
pad6 = doc.addObject("PartDesign::Pad", "Pad005")
body.addObject(pad6)
pad6.Profile = sketch14
pad6.setExpression("Length", "Params.pad6_length")

sketch15 = doc.addObject("Sketcher::SketchObject", "Sketch014")
body.addObject(sketch15)
sketch15.AttachmentSupport = (doc.XY_Plane, [""])
sketch15.MapMode = "FlatFace"
sketch15.AttachmentOffset = App.Placement(V(0, 0, 85), App.Rotation())
sketch15.addGeometry(Part.LineSegment(V(-100, 160, 0), V(-100, 0, 0)), False)
sketch15.addGeometry(Part.LineSegment(V(-100, 0, 0), V(100, 0, 0)), False)
sketch15.addGeometry(Part.LineSegment(V(100, 0, 0), V(100, 160, 0)), False)
sketch15.addGeometry(Part.LineSegment(V(100, 160, 0), V(-100, 160, 0)), False)
sketch15.addConstraint(Sketcher.Constraint("Coincident", 0, 2, 1, 1))
sketch15.addConstraint(Sketcher.Constraint("Coincident", 1, 2, 2, 1))
sketch15.addConstraint(Sketcher.Constraint("Coincident", 2, 2, 3, 1))
sketch15.addConstraint(Sketcher.Constraint("Coincident", 3, 2, 0, 1))
sketch15.addConstraint(Sketcher.Constraint("Vertical", 0))
sketch15.addConstraint(Sketcher.Constraint("Horizontal", 1))
sketch15.addConstraint(Sketcher.Constraint("Vertical", 2))
sketch15.addConstraint(Sketcher.Constraint("Horizontal", 3))
sketch15.addConstraint(Sketcher.Constraint("Symmetric", 0, 2, 1, 2, -1, 1))
sketch15.addConstraint(Sketcher.Constraint("DistanceX", 1, 1, 1, 2, 200.0))
sketch15.addConstraint(Sketcher.Constraint("DistanceY", 0, 2, 0, 1, 160.0))
sketch15.setExpression("Constraints[9]", "Params.sketch15_width")
sketch15.setExpression("Constraints[10]", "Params.sketch15_height")
pocket9 = doc.addObject("PartDesign::Pocket", "Pocket008")
body.addObject(pocket9)
pocket9.Profile = sketch15
pocket9.setExpression("Length", "Params.pocket9_length")

sketch16 = doc.addObject("Sketcher::SketchObject", "Sketch015")
body.addObject(sketch16)
sketch16.AttachmentSupport = (doc.XY_Plane, [""])
sketch16.MapMode = "FlatFace"
sketch16.AttachmentOffset = App.Placement(V(0, 0, 85), App.Rotation())
sketch16.addGeometry(Part.LineSegment(V(-100, 160, 0), V(-100, 0, 0)), False)
sketch16.addGeometry(Part.LineSegment(V(-100, 0, 0), V(100, 0, 0)), False)
sketch16.addGeometry(Part.LineSegment(V(100, 0, 0), V(100, 160, 0)), False)
sketch16.addGeometry(Part.LineSegment(V(100, 160, 0), V(-100, 160, 0)), False)
sketch16.addConstraint(Sketcher.Constraint("Coincident", 0, 2, 1, 1))
sketch16.addConstraint(Sketcher.Constraint("Coincident", 1, 2, 2, 1))
sketch16.addConstraint(Sketcher.Constraint("Coincident", 2, 2, 3, 1))
sketch16.addConstraint(Sketcher.Constraint("Coincident", 3, 2, 0, 1))
sketch16.addConstraint(Sketcher.Constraint("Vertical", 0))
sketch16.addConstraint(Sketcher.Constraint("Horizontal", 1))
sketch16.addConstraint(Sketcher.Constraint("Vertical", 2))
sketch16.addConstraint(Sketcher.Constraint("Horizontal", 3))
sketch16.addConstraint(Sketcher.Constraint("Symmetric", 0, 2, 1, 2, -1, 1))
sketch16.addConstraint(Sketcher.Constraint("DistanceX", 1, 1, 1, 2, 200.0))
sketch16.addConstraint(Sketcher.Constraint("DistanceY", 0, 2, 0, 1, 160.0))
sketch16.setExpression("Constraints[9]", "Params.sketch16_width")
sketch16.setExpression("Constraints[10]", "Params.sketch16_height")
pocket10 = doc.addObject("PartDesign::Pocket", "Pocket009")
body.addObject(pocket10)
pocket10.Profile = sketch16
pocket10.setExpression("Length", "Params.pocket10_length")
pocket10.Reversed = True

doc.recompute()
